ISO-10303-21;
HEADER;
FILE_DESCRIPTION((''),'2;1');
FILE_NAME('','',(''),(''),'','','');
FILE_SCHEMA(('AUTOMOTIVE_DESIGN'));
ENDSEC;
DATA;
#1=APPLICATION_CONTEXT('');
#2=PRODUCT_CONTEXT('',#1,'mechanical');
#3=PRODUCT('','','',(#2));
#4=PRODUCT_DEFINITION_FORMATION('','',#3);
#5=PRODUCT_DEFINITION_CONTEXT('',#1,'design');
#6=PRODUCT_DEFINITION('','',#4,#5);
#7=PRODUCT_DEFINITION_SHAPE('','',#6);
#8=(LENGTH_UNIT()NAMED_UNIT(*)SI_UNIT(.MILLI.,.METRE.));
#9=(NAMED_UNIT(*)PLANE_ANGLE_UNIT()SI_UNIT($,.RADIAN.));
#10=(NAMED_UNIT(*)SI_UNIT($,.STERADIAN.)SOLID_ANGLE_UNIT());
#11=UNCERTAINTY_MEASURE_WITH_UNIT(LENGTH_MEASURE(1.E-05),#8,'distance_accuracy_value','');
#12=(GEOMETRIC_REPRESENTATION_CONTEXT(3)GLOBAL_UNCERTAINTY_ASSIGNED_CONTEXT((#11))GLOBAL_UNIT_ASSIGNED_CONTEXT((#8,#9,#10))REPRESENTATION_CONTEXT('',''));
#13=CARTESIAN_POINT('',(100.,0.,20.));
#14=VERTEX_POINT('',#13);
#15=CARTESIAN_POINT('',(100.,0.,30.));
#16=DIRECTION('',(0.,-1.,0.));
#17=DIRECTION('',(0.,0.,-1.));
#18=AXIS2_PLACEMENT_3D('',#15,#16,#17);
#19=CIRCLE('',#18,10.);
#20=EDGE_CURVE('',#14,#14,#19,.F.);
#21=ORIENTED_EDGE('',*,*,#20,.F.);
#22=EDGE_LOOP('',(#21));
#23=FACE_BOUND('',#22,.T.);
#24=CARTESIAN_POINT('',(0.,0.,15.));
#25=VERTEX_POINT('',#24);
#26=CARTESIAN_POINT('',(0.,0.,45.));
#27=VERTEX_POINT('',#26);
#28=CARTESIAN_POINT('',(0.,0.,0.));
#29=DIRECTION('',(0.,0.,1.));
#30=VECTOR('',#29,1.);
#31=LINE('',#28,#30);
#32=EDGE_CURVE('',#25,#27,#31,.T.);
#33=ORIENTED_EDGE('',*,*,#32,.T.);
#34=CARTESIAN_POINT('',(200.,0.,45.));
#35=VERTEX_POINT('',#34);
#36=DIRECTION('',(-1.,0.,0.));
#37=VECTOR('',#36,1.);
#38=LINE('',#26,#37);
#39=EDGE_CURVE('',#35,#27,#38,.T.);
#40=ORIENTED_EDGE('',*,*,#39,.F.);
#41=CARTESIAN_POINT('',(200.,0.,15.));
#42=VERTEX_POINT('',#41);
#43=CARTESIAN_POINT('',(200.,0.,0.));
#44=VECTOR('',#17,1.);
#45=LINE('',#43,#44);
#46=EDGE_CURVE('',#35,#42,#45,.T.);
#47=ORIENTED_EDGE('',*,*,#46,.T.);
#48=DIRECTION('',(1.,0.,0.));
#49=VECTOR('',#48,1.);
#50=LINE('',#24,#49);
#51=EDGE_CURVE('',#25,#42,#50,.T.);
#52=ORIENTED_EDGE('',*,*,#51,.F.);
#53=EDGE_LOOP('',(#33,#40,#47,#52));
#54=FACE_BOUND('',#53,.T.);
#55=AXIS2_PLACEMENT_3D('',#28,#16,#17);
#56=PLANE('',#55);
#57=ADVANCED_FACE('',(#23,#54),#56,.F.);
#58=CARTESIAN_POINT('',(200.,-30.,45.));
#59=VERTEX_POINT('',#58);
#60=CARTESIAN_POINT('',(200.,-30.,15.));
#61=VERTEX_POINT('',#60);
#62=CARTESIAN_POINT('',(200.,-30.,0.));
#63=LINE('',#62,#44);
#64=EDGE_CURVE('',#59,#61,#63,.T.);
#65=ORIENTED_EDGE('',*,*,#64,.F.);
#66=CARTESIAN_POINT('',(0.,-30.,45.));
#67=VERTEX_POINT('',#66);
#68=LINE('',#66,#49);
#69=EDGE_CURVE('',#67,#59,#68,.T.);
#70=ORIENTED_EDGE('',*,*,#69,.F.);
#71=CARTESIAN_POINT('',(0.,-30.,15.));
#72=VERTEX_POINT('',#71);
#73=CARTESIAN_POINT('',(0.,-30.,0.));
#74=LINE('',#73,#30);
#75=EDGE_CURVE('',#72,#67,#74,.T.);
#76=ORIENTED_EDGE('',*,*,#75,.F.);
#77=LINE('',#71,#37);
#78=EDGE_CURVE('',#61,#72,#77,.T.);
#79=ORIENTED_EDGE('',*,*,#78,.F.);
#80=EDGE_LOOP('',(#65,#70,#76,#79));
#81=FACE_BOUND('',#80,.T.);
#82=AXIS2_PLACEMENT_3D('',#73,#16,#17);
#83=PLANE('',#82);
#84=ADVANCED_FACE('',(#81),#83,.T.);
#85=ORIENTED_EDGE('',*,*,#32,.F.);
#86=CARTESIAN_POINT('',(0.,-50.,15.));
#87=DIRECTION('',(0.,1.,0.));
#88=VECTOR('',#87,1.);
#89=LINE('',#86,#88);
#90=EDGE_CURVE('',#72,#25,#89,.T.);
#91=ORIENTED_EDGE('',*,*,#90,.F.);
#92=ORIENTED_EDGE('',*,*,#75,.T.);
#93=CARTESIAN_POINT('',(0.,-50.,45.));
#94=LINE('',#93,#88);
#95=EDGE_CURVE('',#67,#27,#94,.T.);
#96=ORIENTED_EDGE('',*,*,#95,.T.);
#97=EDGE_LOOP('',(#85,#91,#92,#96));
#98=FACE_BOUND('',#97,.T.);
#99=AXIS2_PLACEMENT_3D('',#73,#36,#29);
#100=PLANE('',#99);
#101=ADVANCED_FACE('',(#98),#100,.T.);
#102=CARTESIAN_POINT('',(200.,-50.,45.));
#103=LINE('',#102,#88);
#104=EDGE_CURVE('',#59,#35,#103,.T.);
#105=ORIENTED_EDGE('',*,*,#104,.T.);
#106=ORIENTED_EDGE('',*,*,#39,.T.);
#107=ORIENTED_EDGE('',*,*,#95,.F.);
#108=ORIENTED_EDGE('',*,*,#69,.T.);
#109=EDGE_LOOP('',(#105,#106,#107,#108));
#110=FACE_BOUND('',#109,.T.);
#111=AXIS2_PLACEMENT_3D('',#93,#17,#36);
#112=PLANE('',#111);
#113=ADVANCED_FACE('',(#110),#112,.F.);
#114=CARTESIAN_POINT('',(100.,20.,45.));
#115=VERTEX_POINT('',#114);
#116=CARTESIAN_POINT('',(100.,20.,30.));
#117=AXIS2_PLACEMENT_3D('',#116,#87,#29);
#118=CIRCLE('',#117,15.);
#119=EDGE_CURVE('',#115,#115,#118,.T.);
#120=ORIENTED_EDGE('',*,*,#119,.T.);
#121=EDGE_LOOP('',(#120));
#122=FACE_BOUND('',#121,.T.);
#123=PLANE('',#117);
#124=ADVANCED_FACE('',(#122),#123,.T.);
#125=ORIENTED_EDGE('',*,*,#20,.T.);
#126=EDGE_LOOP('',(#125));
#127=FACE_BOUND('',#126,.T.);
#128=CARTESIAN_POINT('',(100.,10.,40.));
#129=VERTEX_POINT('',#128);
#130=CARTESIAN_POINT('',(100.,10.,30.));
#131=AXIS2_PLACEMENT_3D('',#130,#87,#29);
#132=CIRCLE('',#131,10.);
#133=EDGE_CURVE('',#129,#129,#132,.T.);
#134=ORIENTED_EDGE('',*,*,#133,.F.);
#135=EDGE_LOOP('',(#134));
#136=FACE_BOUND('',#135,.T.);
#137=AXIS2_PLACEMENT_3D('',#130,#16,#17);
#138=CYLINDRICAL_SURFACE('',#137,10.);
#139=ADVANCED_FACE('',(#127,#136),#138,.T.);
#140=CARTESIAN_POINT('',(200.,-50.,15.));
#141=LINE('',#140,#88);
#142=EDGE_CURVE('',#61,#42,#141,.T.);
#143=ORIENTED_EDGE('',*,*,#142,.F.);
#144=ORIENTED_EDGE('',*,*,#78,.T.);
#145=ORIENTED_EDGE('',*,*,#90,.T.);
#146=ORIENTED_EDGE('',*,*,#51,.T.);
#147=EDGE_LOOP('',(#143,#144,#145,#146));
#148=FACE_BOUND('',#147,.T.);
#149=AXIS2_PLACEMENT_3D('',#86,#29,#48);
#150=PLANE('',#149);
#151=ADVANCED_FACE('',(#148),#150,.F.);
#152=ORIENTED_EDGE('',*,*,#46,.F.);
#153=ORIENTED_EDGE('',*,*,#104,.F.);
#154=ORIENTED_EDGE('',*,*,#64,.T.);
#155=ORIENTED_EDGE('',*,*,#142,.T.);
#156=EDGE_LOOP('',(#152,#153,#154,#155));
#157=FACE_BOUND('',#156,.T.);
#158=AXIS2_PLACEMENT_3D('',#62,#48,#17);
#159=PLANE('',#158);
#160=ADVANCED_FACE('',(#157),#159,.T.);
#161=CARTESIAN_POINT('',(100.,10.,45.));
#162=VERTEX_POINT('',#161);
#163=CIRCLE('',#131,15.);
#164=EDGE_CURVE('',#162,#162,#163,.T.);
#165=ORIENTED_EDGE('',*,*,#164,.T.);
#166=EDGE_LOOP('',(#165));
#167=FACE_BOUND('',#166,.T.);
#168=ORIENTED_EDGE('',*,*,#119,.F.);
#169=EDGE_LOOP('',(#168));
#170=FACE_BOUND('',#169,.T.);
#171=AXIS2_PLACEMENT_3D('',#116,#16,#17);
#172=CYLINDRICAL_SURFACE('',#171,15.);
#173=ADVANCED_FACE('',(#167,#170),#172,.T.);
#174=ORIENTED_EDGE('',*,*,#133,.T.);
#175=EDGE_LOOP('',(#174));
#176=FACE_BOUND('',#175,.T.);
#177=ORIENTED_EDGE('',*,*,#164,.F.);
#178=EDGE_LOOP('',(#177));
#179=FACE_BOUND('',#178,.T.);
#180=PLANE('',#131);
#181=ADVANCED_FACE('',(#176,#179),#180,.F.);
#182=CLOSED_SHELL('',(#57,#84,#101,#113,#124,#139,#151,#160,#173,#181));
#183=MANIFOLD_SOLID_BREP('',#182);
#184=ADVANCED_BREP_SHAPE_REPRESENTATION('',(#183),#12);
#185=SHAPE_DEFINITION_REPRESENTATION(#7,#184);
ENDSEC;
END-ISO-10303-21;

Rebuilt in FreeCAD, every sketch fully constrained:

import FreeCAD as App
import Part
import Sketcher
from FreeCAD import Vector


def add_polygon(sketch, points):
    """Adds a closed chain of lines whose ends are joined by coincident constraints."""
    first, n = sketch.GeometryCount, len(points)
    for a, b in zip(points, points[1:] + points[:1]):
        sketch.addGeometry(Part.LineSegment(App.Vector(*a, 0), App.Vector(*b, 0)), False)
    for i in range(n):
        sketch.addConstraint(Sketcher.Constraint("Coincident", first + i, 2, first + (i + 1) % n, 1))

doc = App.newDocument("Part")
body = doc.addObject("PartDesign::Body", "Body")

sketch1 = body.newObject("Sketcher::SketchObject", "Sketch")
sketch1.AttachmentSupport = (doc.getObject("XZ_Plane"), [""])
sketch1.MapMode = "FlatFace"
add_polygon(sketch1, [(0, 0), (0, 60), (200, 60), (200, 0)])
sketch1.addConstraint([
    Sketcher.Constraint("Vertical", 0),
    Sketcher.Constraint("Horizontal", 1),
    Sketcher.Constraint("Vertical", 2),
    Sketcher.Constraint("Horizontal", 3),
    Sketcher.Constraint("Coincident", 3, 2, -1, 1),
    Sketcher.Constraint("DistanceX", 1, 1, 1, 2, 200.0),
    Sketcher.Constraint("DistanceY", 0, 1, 0, 2, 60.0),
])
pad1 = body.newObject("PartDesign::Pad", "Pad")
pad1.Profile = sketch1
pad1.Length = 30

sketch2 = body.newObject("Sketcher::SketchObject", "Sketch001")
sketch2.AttachmentSupport = (doc.getObject("XZ_Plane"), [""])
sketch2.MapMode = "FlatFace"
sketch2.addGeometry(Part.Circle(Vector(100, 30, 0), Vector(0, 0, 1), 10), False)
sketch2.addConstraint([
    Sketcher.Constraint("Diameter", 0, 20.0),
    Sketcher.Constraint("DistanceX", -1, 1, 0, 3, 100.0),
    Sketcher.Constraint("DistanceY", -1, 1, 0, 3, 30.0),
])
pad2 = body.newObject("PartDesign::Pad", "Pad001")
pad2.Profile = sketch2
pad2.Length = 10
pad2.Reversed = True

sketch3 = body.newObject("Sketcher::SketchObject", "Sketch002")
sketch3.AttachmentSupport = (doc.getObject("XZ_Plane"), [""])
sketch3.MapMode = "FlatFace"
sketch3.AttachmentOffset = App.Placement(Vector(0, 0, -10), App.Rotation())
sketch3.addGeometry(Part.Circle(Vector(100, 30, 0), Vector(0, 0, 1), 15), False)
sketch3.addConstraint([
    Sketcher.Constraint("Diameter", 0, 30.0),
    Sketcher.Constraint("DistanceX", -1, 1, 0, 3, 100.0),
    Sketcher.Constraint("DistanceY", -1, 1, 0, 3, 30.0),
])
pad3 = body.newObject("PartDesign::Pad", "Pad002")
pad3.Profile = sketch3
pad3.Length = 10
pad3.Reversed = True

sketch4 = body.newObject("Sketcher::SketchObject", "Sketch003")
sketch4.AttachmentSupport = (doc.getObject("XZ_Plane"), [""])
sketch4.MapMode = "FlatFace"
add_polygon(sketch4, [(0, 0), (0, 15), (200, 15), (200, 0)])
add_polygon(sketch4, [(0, 45), (0, 60), (200, 60), (200, 45)])
sketch4.addConstraint([
    Sketcher.Constraint("Vertical", 0),
    Sketcher.Constraint("Horizontal", 1),
    Sketcher.Constraint("Vertical", 2),
    Sketcher.Constraint("Horizontal", 3),
    Sketcher.Constraint("Vertical", 4),
    Sketcher.Constraint("Horizontal", 5),
    Sketcher.Constraint("Vertical", 6),
    Sketcher.Constraint("Horizontal", 7),
    Sketcher.Constraint("Coincident", 3, 2, -1, 1),
    Sketcher.Constraint("PointOnObject", 4, 2, -2),
    Sketcher.Constraint("Vertical", 2, 2, 5, 2),
    Sketcher.Constraint("Equal", 2, 4),
    Sketcher.Constraint("DistanceX", 1, 1, 1, 2, 200.0),
    Sketcher.Constraint("DistanceY", 0, 1, 0, 2, 15.0),
    Sketcher.Constraint("DistanceY", -1, 1, 4, 2, 60.0),
])
pocket1 = body.newObject("PartDesign::Pocket", "Pocket")
pocket1.Profile = sketch4
pocket1.Length = 50
pocket1.Reversed = True

doc.recompute()
